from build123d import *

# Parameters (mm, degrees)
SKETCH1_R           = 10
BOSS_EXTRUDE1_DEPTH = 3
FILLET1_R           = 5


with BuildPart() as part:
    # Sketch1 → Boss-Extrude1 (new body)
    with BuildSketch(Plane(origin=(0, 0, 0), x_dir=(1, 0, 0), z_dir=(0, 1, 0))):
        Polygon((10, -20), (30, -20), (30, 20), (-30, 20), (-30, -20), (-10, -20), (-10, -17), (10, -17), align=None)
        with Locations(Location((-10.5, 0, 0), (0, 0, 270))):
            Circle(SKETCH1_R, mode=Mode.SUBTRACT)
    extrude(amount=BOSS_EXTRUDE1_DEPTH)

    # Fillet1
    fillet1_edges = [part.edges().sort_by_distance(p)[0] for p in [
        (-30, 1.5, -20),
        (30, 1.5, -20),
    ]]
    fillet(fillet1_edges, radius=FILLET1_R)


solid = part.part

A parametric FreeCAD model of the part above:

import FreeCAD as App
import Part
import Sketcher

V = App.Vector
Q = App.Units.Quantity


def edges_at(feature, points):
    """Names of the edges that pass closest to the given points."""
    edges = feature.Shape.Edges
    near = lambda p: min(range(len(edges)), key=lambda i: edges[i].distToShape(Part.Vertex(*p))[0])
    return sorted({f"Edge{near(p) + 1}" for p in points})


def add_polygon(sketch, points):
    """Adds a closed chain of lines whose ends are joined by coincident constraints."""
    first, n = sketch.GeometryCount, len(points)
    for a, b in zip(points, points[1:] + points[:1]):
        sketch.addGeometry(Part.LineSegment(App.Vector(*a, 0), App.Vector(*b, 0)), False)
    for i in range(n):
        sketch.addConstraint(Sketcher.Constraint("Coincident", first + i, 2, first + (i + 1) % n, 1))

doc = App.newDocument("Part")
params = doc.addObject("Spreadsheet::Sheet", "Params")
for row, (alias, value) in enumerate([
    ("sketch1_diameter", "20 mm"),
    ("sketch1_width", "20 mm"),
    ("sketch1_height", "40 mm"),
    ("sketch1_height2", "3 mm"),
    ("pad1_length", "3 mm"),
    ("fillet_radius", "5 mm"),
], start=1):
    params.set(f"A{row}", alias)
    params.set(f"B{row}", "=" + value)
    params.setAlias(f"B{row}", alias)

body = doc.addObject("PartDesign::Body", "Body")

# Sketch on XZ plane
sketch1 = body.newObject("Sketcher::SketchObject", "Sketch")
sketch1.AttachmentSupport = (doc.getObject("XZ_Plane"), [""])
sketch1.MapMode = "FlatFace"
add_polygon(sketch1, [(10, 20), (30, 20), (30, -20), (-30, -20), (-30, 20), (-10, 20), (-10, 17), (10, 17)])  # lines 0-7
sketch1.addGeometry(Part.Circle(V(-10.5, 0, 0), V(0, 0, 1), 10), False)  # 8
sketch1.addConstraint(Sketcher.Constraint("Horizontal", 0))
sketch1.addConstraint(Sketcher.Constraint("Vertical", 1))
sketch1.addConstraint(Sketcher.Constraint("Horizontal", 2))
sketch1.addConstraint(Sketcher.Constraint("Vertical", 3))
sketch1.addConstraint(Sketcher.Constraint("Horizontal", 4))
sketch1.addConstraint(Sketcher.Constraint("Vertical", 5))
sketch1.addConstraint(Sketcher.Constraint("Horizontal", 6))
sketch1.addConstraint(Sketcher.Constraint("Vertical", 7))
sketch1.addConstraint(Sketcher.Constraint("Symmetric", 0, 2, 2, 2, -1, 1))
sketch1.addConstraint(Sketcher.Constraint("Symmetric", 4, 2, 7, 2, -2))
sketch1.addConstraint(Sketcher.Constraint("PointOnObject", 8, 3, -1))
sketch1.addConstraint(Sketcher.Constraint("Equal", 4, 6))
sketch1.addConstraint(Sketcher.Constraint("Diameter", 8, Q("20 mm")))
sketch1.addConstraint(Sketcher.Constraint("DistanceX", 0, 1, 0, 2, Q("20 mm")))
sketch1.addConstraint(Sketcher.Constraint("DistanceY", 1, 2, 1, 1, Q("40 mm")))
sketch1.addConstraint(Sketcher.Constraint("DistanceY", 5, 2, 5, 1, Q("3 mm")))
sketch1.addConstraint(Sketcher.Constraint("DistanceX", 8, 3, -1, 1, Q("10.5 mm")))
sketch1.setExpression("Constraints[20]", "Params.sketch1_diameter")
sketch1.setExpression("Constraints[21]", "Params.sketch1_width")
sketch1.setExpression("Constraints[22]", "Params.sketch1_height")
sketch1.setExpression("Constraints[23]", "Params.sketch1_height2")
pad1 = body.newObject("PartDesign::Pad", "Pad")
pad1.Profile = sketch1
pad1.setExpression("Length", "Params.pad1_length")
pad1.Reversed = True
doc.recompute()

fillet = body.newObject("PartDesign::Fillet", "Fillet")
fillet.Base = (pad1, edges_at(pad1, [(-30, 1.5, -20), (30, 1.5, -20)]))
fillet.setExpression("Radius", "Params.fillet_radius")

doc.recompute()
